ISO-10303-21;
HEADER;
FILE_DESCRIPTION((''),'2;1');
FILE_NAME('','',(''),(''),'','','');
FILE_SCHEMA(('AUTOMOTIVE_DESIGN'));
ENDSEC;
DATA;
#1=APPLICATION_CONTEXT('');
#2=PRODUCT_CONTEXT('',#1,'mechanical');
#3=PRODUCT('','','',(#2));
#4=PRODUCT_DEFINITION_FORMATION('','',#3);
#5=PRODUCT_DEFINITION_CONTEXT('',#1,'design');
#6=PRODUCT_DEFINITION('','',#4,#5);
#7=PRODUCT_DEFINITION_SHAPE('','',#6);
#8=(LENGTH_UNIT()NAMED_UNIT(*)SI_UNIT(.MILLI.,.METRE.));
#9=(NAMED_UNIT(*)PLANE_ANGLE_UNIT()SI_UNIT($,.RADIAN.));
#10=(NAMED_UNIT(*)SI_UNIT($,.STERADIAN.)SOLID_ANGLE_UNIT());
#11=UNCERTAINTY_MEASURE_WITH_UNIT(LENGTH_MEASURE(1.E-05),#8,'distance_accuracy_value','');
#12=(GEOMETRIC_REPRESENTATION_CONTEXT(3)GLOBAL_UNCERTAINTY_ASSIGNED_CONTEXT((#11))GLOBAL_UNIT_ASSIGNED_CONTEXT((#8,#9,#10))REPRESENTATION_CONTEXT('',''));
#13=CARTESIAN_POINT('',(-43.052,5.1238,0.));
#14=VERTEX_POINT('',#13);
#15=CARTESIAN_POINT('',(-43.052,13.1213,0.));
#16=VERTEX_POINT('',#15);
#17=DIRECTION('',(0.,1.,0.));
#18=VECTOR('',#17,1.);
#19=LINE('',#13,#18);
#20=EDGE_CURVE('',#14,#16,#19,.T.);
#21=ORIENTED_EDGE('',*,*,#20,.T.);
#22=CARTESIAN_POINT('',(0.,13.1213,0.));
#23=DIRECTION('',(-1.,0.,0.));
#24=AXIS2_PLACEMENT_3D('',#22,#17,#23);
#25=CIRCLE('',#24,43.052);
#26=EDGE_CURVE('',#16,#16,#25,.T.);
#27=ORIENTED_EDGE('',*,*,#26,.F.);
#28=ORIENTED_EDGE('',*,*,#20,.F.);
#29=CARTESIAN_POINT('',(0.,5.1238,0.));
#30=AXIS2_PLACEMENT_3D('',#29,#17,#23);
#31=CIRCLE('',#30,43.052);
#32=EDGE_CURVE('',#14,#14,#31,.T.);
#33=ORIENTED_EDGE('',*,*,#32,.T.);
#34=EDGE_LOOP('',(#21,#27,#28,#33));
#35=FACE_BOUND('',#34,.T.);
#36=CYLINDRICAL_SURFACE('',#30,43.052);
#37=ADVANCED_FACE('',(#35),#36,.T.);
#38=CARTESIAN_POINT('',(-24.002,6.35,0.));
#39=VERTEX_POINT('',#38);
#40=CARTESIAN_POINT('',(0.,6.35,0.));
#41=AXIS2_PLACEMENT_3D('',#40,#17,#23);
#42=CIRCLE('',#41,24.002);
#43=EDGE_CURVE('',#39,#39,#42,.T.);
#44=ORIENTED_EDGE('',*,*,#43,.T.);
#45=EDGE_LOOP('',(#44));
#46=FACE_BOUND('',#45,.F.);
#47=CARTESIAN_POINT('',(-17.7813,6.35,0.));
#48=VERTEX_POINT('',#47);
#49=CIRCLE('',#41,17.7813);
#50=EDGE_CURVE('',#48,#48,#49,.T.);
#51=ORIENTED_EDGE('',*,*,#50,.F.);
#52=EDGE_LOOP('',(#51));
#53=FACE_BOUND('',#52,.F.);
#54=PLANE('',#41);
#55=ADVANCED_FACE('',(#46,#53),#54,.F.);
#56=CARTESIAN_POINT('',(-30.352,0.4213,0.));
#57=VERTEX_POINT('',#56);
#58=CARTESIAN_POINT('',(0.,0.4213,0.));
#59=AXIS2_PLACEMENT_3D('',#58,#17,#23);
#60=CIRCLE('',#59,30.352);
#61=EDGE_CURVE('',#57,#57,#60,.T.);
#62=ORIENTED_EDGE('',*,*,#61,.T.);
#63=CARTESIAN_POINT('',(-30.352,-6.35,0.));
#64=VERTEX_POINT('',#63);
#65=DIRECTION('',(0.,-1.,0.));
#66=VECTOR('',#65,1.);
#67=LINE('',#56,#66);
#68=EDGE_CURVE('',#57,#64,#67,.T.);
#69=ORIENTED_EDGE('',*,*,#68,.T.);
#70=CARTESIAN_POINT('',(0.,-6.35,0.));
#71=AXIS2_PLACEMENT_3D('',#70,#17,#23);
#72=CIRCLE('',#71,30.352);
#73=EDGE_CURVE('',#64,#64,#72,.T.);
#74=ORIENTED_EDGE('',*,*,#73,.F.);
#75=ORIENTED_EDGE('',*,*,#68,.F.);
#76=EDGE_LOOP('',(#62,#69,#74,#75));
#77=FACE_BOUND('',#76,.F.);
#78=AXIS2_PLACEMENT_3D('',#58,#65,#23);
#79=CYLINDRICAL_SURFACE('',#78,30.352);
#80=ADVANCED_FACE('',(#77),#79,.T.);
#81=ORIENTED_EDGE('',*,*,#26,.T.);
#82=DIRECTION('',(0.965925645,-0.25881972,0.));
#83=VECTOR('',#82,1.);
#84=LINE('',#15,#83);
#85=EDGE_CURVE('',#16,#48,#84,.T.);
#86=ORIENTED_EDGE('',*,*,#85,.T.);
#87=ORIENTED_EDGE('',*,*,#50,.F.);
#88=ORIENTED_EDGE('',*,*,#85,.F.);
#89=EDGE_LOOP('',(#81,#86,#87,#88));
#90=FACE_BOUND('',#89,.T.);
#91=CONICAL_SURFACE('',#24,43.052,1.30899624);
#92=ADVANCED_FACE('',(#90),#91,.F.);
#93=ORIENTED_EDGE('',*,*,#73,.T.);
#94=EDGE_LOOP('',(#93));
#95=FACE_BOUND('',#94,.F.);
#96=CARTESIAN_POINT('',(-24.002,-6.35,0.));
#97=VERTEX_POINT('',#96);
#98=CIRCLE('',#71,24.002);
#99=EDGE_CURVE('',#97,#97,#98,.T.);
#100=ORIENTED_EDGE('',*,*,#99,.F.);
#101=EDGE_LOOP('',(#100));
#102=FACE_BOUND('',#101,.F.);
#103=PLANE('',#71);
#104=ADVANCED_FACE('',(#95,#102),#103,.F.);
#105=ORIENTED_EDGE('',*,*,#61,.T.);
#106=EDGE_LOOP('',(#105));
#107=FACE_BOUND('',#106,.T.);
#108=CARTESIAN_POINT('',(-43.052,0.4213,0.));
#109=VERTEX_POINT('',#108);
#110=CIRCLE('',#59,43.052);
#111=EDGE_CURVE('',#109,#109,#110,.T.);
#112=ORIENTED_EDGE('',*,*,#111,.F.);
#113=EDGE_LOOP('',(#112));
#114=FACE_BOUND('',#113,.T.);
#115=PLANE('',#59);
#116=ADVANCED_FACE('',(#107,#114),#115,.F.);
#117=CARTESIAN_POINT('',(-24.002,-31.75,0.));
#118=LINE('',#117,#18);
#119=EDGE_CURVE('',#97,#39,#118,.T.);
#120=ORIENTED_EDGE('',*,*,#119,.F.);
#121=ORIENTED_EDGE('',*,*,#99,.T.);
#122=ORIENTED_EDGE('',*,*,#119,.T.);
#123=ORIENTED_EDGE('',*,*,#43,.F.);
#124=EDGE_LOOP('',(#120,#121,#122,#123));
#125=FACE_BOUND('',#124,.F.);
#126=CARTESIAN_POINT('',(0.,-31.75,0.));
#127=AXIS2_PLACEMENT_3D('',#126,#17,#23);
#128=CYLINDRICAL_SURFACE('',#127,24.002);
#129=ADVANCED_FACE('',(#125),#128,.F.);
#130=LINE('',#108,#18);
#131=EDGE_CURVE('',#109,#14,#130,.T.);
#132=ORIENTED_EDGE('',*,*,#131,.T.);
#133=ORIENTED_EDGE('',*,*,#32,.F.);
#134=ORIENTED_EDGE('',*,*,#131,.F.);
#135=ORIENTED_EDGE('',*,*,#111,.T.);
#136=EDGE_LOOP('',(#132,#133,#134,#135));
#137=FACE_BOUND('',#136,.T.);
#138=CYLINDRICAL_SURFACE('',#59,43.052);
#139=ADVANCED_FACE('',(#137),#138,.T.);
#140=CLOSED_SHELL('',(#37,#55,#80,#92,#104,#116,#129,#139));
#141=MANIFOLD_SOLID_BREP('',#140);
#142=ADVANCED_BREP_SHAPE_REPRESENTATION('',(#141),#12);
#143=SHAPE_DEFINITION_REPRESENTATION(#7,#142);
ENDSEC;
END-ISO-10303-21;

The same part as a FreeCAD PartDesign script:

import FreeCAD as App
import Part
import Sketcher
Q = App.Units.Quantity

doc = App.newDocument("Part")
params = doc.addObject("Spreadsheet::Sheet", "Params")
for row, (alias, value) in enumerate([
    ("sketch1_width", "0.5 in"),
    ("sketch1_width2", "0.25 in"),
    ("sketch1_length", "1.03 in"),
    ("revolution_angle", "360 deg"),
], start=1):
    params.set(f"A{row}", alias)
    params.set(f"B{row}", "=" + value)
    params.setAlias(f"B{row}", alias)

body = doc.addObject("PartDesign::Body", "Body")

# Sketch on XY plane
sketch1 = body.newObject("Sketcher::SketchObject", "Sketch")
sketch1.AttachmentSupport = (doc.getObject("XY_Plane"), [""])
sketch1.MapMode = "FlatFace"
sketch1.addGeometry([
    Part.LineSegment(App.Vector(-24, -6, 0), App.Vector(-24, 6, 0)),  # 0
    Part.LineSegment(App.Vector(-24, 6, 0), App.Vector(-18, 6, 0)),  # 1
    Part.LineSegment(App.Vector(-18, 6, 0), App.Vector(-43, 13, 0)),  # 2
    Part.LineSegment(App.Vector(-43, 13, 0), App.Vector(-43, 0, 0)),  # 3
    Part.LineSegment(App.Vector(-43, 0, 0), App.Vector(-30, 0, 0)),  # 4
    Part.LineSegment(App.Vector(-30, 0, 0), App.Vector(-30, -6, 0)),  # 5
    Part.LineSegment(App.Vector(-30, -6, 0), App.Vector(-24, -6, 0)),  # 6
], False)
sketch1.addConstraint([
    Sketcher.Constraint("Coincident", 0, 2, 1, 1),
    Sketcher.Constraint("Coincident", 1, 2, 2, 1),
    Sketcher.Constraint("Coincident", 2, 2, 3, 1),
    Sketcher.Constraint("Coincident", 3, 2, 4, 1),
    Sketcher.Constraint("Coincident", 4, 2, 5, 1),
    Sketcher.Constraint("Coincident", 5, 2, 6, 1),
    Sketcher.Constraint("Coincident", 6, 2, 0, 1),
    Sketcher.Constraint("Vertical", 0),
    Sketcher.Constraint("Horizontal", 1),
    Sketcher.Constraint("Vertical", 3),
    Sketcher.Constraint("Horizontal", 4),
    Sketcher.Constraint("Vertical", 5),
    Sketcher.Constraint("Horizontal", 6),
    Sketcher.Constraint("Equal", 4, 0),
    Sketcher.Constraint("Equal", 0, 3),
    Sketcher.Constraint("DistanceX", 4, 1, 4, 2, Q("0.5 in")),
    Sketcher.Constraint("DistanceX", 6, 1, 6, 2, Q("0.25 in")),
    Sketcher.Constraint("DistanceY", -1, 1, 0, 2, Q("0.25 in")),
    Sketcher.Constraint("Angle", 2, Q("165 deg")),
    Sketcher.Constraint("Distance", 2, Q("1.03 in")),
    Sketcher.Constraint("DistanceX", 0, 2, -1, 1, Q("24.002 mm")),
])
sketch1.setExpression("Constraints[15]", "Params.sketch1_width")
sketch1.setExpression("Constraints[16]", "Params.sketch1_width2")
sketch1.setExpression("Constraints[19]", "Params.sketch1_length")
revolution = body.newObject("PartDesign::Revolution", "Revolution")
revolution.Profile = sketch1
revolution.ReferenceAxis = (sketch1, ["V_Axis"])
revolution.setExpression("Angle", "Params.revolution_angle")

doc.recompute()
